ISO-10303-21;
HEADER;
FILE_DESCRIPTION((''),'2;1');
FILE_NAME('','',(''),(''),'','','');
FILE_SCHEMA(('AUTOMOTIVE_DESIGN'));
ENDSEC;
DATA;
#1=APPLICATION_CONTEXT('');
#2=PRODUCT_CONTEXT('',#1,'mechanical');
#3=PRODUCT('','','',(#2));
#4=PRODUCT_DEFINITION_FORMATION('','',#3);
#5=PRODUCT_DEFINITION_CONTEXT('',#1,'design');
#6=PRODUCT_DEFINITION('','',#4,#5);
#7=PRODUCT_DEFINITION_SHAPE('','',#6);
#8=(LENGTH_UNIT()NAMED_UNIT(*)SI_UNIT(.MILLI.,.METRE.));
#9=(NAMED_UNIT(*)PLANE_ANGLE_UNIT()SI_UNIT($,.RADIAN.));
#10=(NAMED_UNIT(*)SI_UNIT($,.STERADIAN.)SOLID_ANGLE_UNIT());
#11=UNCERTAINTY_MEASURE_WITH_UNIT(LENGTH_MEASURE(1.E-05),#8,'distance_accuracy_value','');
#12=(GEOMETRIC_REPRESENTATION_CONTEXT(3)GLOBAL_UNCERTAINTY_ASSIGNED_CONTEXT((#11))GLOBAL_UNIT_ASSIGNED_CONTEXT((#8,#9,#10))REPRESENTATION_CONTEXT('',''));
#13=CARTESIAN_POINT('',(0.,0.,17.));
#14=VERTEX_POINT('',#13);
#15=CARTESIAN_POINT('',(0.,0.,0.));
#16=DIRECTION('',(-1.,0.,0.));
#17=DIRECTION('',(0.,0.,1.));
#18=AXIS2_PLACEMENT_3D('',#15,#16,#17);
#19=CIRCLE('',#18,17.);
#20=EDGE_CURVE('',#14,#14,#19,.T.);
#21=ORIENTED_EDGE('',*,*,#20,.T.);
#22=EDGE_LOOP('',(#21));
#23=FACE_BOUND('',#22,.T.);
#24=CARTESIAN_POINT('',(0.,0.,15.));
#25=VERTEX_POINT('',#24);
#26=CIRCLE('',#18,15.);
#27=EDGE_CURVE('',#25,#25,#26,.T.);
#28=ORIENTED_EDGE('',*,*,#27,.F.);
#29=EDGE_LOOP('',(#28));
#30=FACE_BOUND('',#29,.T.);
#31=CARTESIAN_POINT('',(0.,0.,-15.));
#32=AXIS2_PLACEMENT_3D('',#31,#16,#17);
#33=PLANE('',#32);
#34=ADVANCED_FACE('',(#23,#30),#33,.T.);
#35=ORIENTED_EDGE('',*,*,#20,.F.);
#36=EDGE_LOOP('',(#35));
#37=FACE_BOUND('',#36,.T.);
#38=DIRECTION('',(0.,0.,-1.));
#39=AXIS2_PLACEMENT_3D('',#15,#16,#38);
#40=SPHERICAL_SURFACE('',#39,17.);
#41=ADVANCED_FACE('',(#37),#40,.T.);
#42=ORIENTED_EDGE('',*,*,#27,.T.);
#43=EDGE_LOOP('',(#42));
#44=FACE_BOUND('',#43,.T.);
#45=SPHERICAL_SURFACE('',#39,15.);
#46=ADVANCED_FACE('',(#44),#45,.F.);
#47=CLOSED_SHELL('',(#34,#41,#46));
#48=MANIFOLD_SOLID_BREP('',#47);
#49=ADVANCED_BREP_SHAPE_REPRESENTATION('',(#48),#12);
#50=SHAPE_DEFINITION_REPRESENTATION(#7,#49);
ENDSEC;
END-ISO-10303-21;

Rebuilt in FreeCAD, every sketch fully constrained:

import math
import FreeCAD as App
import Part
import Sketcher
from FreeCAD import Vector
Q = App.Units.Quantity

doc = App.newDocument("Part")
params = doc.addObject("Spreadsheet::Sheet", "Params")
for row, (alias, value) in enumerate([
    ("sketch1_radius", "17 mm"),
    ("sketch1_radius2", "15 mm"),
    ("revolution_angle", "360 deg"),
], start=1):
    params.set(f"A{row}", alias)
    params.set(f"B{row}", "=" + value)
    params.setAlias(f"B{row}", alias)

body = doc.addObject("PartDesign::Body", "Body")

# Sketch on XZ plane
sketch1 = body.newObject("Sketcher::SketchObject", "Sketch")
sketch1.AttachmentSupport = (doc.getObject("XZ_Plane"), [""])
sketch1.MapMode = "FlatFace"
sketch1.addGeometry(Part.ArcOfCircle(Part.Circle(Vector(0, 0, 0), Vector(0, 0, 1), 17), math.radians(-90), math.radians(0)), False)
sketch1.addGeometry(Part.LineSegment(Vector(0, -17, 0), Vector(0, -15, 0)), False)
sketch1.addGeometry(Part.ArcOfCircle(Part.Circle(Vector(0, 0, 0), Vector(0, 0, 1), 15), math.radians(-90), math.radians(0)), False)
sketch1.addGeometry(Part.LineSegment(Vector(15, 0, 0), Vector(17, 0, 0)), False)
sketch1.addConstraint(Sketcher.Constraint("Coincident", 0, 1, 1, 1))
sketch1.addConstraint(Sketcher.Constraint("Coincident", 1, 2, 2, 1))
sketch1.addConstraint(Sketcher.Constraint("Coincident", 2, 2, 3, 1))
sketch1.addConstraint(Sketcher.Constraint("Coincident", 3, 2, 0, 2))
sketch1.addConstraint(Sketcher.Constraint("Vertical", 1))
sketch1.addConstraint(Sketcher.Constraint("Horizontal", 3))
sketch1.addConstraint(Sketcher.Constraint("Coincident", 0, 3, -1, 1))
sketch1.addConstraint(Sketcher.Constraint("Coincident", 2, 3, -1, 1))
sketch1.addConstraint(Sketcher.Constraint("PointOnObject", 0, 1, -2))
sketch1.addConstraint(Sketcher.Constraint("PointOnObject", 2, 2, -1))
sketch1.addConstraint(Sketcher.Constraint("Radius", 0, Q("17 mm")))
sketch1.addConstraint(Sketcher.Constraint("Radius", 2, Q("15 mm")))
sketch1.setExpression("Constraints[10]", "Params.sketch1_radius")
sketch1.setExpression("Constraints[11]", "Params.sketch1_radius2")
revolution = body.newObject("PartDesign::Revolution", "Revolution")
revolution.Profile = sketch1
revolution.ReferenceAxis = (sketch1, ["H_Axis"])
revolution.setExpression("Angle", "Params.revolution_angle")

doc.recompute()
